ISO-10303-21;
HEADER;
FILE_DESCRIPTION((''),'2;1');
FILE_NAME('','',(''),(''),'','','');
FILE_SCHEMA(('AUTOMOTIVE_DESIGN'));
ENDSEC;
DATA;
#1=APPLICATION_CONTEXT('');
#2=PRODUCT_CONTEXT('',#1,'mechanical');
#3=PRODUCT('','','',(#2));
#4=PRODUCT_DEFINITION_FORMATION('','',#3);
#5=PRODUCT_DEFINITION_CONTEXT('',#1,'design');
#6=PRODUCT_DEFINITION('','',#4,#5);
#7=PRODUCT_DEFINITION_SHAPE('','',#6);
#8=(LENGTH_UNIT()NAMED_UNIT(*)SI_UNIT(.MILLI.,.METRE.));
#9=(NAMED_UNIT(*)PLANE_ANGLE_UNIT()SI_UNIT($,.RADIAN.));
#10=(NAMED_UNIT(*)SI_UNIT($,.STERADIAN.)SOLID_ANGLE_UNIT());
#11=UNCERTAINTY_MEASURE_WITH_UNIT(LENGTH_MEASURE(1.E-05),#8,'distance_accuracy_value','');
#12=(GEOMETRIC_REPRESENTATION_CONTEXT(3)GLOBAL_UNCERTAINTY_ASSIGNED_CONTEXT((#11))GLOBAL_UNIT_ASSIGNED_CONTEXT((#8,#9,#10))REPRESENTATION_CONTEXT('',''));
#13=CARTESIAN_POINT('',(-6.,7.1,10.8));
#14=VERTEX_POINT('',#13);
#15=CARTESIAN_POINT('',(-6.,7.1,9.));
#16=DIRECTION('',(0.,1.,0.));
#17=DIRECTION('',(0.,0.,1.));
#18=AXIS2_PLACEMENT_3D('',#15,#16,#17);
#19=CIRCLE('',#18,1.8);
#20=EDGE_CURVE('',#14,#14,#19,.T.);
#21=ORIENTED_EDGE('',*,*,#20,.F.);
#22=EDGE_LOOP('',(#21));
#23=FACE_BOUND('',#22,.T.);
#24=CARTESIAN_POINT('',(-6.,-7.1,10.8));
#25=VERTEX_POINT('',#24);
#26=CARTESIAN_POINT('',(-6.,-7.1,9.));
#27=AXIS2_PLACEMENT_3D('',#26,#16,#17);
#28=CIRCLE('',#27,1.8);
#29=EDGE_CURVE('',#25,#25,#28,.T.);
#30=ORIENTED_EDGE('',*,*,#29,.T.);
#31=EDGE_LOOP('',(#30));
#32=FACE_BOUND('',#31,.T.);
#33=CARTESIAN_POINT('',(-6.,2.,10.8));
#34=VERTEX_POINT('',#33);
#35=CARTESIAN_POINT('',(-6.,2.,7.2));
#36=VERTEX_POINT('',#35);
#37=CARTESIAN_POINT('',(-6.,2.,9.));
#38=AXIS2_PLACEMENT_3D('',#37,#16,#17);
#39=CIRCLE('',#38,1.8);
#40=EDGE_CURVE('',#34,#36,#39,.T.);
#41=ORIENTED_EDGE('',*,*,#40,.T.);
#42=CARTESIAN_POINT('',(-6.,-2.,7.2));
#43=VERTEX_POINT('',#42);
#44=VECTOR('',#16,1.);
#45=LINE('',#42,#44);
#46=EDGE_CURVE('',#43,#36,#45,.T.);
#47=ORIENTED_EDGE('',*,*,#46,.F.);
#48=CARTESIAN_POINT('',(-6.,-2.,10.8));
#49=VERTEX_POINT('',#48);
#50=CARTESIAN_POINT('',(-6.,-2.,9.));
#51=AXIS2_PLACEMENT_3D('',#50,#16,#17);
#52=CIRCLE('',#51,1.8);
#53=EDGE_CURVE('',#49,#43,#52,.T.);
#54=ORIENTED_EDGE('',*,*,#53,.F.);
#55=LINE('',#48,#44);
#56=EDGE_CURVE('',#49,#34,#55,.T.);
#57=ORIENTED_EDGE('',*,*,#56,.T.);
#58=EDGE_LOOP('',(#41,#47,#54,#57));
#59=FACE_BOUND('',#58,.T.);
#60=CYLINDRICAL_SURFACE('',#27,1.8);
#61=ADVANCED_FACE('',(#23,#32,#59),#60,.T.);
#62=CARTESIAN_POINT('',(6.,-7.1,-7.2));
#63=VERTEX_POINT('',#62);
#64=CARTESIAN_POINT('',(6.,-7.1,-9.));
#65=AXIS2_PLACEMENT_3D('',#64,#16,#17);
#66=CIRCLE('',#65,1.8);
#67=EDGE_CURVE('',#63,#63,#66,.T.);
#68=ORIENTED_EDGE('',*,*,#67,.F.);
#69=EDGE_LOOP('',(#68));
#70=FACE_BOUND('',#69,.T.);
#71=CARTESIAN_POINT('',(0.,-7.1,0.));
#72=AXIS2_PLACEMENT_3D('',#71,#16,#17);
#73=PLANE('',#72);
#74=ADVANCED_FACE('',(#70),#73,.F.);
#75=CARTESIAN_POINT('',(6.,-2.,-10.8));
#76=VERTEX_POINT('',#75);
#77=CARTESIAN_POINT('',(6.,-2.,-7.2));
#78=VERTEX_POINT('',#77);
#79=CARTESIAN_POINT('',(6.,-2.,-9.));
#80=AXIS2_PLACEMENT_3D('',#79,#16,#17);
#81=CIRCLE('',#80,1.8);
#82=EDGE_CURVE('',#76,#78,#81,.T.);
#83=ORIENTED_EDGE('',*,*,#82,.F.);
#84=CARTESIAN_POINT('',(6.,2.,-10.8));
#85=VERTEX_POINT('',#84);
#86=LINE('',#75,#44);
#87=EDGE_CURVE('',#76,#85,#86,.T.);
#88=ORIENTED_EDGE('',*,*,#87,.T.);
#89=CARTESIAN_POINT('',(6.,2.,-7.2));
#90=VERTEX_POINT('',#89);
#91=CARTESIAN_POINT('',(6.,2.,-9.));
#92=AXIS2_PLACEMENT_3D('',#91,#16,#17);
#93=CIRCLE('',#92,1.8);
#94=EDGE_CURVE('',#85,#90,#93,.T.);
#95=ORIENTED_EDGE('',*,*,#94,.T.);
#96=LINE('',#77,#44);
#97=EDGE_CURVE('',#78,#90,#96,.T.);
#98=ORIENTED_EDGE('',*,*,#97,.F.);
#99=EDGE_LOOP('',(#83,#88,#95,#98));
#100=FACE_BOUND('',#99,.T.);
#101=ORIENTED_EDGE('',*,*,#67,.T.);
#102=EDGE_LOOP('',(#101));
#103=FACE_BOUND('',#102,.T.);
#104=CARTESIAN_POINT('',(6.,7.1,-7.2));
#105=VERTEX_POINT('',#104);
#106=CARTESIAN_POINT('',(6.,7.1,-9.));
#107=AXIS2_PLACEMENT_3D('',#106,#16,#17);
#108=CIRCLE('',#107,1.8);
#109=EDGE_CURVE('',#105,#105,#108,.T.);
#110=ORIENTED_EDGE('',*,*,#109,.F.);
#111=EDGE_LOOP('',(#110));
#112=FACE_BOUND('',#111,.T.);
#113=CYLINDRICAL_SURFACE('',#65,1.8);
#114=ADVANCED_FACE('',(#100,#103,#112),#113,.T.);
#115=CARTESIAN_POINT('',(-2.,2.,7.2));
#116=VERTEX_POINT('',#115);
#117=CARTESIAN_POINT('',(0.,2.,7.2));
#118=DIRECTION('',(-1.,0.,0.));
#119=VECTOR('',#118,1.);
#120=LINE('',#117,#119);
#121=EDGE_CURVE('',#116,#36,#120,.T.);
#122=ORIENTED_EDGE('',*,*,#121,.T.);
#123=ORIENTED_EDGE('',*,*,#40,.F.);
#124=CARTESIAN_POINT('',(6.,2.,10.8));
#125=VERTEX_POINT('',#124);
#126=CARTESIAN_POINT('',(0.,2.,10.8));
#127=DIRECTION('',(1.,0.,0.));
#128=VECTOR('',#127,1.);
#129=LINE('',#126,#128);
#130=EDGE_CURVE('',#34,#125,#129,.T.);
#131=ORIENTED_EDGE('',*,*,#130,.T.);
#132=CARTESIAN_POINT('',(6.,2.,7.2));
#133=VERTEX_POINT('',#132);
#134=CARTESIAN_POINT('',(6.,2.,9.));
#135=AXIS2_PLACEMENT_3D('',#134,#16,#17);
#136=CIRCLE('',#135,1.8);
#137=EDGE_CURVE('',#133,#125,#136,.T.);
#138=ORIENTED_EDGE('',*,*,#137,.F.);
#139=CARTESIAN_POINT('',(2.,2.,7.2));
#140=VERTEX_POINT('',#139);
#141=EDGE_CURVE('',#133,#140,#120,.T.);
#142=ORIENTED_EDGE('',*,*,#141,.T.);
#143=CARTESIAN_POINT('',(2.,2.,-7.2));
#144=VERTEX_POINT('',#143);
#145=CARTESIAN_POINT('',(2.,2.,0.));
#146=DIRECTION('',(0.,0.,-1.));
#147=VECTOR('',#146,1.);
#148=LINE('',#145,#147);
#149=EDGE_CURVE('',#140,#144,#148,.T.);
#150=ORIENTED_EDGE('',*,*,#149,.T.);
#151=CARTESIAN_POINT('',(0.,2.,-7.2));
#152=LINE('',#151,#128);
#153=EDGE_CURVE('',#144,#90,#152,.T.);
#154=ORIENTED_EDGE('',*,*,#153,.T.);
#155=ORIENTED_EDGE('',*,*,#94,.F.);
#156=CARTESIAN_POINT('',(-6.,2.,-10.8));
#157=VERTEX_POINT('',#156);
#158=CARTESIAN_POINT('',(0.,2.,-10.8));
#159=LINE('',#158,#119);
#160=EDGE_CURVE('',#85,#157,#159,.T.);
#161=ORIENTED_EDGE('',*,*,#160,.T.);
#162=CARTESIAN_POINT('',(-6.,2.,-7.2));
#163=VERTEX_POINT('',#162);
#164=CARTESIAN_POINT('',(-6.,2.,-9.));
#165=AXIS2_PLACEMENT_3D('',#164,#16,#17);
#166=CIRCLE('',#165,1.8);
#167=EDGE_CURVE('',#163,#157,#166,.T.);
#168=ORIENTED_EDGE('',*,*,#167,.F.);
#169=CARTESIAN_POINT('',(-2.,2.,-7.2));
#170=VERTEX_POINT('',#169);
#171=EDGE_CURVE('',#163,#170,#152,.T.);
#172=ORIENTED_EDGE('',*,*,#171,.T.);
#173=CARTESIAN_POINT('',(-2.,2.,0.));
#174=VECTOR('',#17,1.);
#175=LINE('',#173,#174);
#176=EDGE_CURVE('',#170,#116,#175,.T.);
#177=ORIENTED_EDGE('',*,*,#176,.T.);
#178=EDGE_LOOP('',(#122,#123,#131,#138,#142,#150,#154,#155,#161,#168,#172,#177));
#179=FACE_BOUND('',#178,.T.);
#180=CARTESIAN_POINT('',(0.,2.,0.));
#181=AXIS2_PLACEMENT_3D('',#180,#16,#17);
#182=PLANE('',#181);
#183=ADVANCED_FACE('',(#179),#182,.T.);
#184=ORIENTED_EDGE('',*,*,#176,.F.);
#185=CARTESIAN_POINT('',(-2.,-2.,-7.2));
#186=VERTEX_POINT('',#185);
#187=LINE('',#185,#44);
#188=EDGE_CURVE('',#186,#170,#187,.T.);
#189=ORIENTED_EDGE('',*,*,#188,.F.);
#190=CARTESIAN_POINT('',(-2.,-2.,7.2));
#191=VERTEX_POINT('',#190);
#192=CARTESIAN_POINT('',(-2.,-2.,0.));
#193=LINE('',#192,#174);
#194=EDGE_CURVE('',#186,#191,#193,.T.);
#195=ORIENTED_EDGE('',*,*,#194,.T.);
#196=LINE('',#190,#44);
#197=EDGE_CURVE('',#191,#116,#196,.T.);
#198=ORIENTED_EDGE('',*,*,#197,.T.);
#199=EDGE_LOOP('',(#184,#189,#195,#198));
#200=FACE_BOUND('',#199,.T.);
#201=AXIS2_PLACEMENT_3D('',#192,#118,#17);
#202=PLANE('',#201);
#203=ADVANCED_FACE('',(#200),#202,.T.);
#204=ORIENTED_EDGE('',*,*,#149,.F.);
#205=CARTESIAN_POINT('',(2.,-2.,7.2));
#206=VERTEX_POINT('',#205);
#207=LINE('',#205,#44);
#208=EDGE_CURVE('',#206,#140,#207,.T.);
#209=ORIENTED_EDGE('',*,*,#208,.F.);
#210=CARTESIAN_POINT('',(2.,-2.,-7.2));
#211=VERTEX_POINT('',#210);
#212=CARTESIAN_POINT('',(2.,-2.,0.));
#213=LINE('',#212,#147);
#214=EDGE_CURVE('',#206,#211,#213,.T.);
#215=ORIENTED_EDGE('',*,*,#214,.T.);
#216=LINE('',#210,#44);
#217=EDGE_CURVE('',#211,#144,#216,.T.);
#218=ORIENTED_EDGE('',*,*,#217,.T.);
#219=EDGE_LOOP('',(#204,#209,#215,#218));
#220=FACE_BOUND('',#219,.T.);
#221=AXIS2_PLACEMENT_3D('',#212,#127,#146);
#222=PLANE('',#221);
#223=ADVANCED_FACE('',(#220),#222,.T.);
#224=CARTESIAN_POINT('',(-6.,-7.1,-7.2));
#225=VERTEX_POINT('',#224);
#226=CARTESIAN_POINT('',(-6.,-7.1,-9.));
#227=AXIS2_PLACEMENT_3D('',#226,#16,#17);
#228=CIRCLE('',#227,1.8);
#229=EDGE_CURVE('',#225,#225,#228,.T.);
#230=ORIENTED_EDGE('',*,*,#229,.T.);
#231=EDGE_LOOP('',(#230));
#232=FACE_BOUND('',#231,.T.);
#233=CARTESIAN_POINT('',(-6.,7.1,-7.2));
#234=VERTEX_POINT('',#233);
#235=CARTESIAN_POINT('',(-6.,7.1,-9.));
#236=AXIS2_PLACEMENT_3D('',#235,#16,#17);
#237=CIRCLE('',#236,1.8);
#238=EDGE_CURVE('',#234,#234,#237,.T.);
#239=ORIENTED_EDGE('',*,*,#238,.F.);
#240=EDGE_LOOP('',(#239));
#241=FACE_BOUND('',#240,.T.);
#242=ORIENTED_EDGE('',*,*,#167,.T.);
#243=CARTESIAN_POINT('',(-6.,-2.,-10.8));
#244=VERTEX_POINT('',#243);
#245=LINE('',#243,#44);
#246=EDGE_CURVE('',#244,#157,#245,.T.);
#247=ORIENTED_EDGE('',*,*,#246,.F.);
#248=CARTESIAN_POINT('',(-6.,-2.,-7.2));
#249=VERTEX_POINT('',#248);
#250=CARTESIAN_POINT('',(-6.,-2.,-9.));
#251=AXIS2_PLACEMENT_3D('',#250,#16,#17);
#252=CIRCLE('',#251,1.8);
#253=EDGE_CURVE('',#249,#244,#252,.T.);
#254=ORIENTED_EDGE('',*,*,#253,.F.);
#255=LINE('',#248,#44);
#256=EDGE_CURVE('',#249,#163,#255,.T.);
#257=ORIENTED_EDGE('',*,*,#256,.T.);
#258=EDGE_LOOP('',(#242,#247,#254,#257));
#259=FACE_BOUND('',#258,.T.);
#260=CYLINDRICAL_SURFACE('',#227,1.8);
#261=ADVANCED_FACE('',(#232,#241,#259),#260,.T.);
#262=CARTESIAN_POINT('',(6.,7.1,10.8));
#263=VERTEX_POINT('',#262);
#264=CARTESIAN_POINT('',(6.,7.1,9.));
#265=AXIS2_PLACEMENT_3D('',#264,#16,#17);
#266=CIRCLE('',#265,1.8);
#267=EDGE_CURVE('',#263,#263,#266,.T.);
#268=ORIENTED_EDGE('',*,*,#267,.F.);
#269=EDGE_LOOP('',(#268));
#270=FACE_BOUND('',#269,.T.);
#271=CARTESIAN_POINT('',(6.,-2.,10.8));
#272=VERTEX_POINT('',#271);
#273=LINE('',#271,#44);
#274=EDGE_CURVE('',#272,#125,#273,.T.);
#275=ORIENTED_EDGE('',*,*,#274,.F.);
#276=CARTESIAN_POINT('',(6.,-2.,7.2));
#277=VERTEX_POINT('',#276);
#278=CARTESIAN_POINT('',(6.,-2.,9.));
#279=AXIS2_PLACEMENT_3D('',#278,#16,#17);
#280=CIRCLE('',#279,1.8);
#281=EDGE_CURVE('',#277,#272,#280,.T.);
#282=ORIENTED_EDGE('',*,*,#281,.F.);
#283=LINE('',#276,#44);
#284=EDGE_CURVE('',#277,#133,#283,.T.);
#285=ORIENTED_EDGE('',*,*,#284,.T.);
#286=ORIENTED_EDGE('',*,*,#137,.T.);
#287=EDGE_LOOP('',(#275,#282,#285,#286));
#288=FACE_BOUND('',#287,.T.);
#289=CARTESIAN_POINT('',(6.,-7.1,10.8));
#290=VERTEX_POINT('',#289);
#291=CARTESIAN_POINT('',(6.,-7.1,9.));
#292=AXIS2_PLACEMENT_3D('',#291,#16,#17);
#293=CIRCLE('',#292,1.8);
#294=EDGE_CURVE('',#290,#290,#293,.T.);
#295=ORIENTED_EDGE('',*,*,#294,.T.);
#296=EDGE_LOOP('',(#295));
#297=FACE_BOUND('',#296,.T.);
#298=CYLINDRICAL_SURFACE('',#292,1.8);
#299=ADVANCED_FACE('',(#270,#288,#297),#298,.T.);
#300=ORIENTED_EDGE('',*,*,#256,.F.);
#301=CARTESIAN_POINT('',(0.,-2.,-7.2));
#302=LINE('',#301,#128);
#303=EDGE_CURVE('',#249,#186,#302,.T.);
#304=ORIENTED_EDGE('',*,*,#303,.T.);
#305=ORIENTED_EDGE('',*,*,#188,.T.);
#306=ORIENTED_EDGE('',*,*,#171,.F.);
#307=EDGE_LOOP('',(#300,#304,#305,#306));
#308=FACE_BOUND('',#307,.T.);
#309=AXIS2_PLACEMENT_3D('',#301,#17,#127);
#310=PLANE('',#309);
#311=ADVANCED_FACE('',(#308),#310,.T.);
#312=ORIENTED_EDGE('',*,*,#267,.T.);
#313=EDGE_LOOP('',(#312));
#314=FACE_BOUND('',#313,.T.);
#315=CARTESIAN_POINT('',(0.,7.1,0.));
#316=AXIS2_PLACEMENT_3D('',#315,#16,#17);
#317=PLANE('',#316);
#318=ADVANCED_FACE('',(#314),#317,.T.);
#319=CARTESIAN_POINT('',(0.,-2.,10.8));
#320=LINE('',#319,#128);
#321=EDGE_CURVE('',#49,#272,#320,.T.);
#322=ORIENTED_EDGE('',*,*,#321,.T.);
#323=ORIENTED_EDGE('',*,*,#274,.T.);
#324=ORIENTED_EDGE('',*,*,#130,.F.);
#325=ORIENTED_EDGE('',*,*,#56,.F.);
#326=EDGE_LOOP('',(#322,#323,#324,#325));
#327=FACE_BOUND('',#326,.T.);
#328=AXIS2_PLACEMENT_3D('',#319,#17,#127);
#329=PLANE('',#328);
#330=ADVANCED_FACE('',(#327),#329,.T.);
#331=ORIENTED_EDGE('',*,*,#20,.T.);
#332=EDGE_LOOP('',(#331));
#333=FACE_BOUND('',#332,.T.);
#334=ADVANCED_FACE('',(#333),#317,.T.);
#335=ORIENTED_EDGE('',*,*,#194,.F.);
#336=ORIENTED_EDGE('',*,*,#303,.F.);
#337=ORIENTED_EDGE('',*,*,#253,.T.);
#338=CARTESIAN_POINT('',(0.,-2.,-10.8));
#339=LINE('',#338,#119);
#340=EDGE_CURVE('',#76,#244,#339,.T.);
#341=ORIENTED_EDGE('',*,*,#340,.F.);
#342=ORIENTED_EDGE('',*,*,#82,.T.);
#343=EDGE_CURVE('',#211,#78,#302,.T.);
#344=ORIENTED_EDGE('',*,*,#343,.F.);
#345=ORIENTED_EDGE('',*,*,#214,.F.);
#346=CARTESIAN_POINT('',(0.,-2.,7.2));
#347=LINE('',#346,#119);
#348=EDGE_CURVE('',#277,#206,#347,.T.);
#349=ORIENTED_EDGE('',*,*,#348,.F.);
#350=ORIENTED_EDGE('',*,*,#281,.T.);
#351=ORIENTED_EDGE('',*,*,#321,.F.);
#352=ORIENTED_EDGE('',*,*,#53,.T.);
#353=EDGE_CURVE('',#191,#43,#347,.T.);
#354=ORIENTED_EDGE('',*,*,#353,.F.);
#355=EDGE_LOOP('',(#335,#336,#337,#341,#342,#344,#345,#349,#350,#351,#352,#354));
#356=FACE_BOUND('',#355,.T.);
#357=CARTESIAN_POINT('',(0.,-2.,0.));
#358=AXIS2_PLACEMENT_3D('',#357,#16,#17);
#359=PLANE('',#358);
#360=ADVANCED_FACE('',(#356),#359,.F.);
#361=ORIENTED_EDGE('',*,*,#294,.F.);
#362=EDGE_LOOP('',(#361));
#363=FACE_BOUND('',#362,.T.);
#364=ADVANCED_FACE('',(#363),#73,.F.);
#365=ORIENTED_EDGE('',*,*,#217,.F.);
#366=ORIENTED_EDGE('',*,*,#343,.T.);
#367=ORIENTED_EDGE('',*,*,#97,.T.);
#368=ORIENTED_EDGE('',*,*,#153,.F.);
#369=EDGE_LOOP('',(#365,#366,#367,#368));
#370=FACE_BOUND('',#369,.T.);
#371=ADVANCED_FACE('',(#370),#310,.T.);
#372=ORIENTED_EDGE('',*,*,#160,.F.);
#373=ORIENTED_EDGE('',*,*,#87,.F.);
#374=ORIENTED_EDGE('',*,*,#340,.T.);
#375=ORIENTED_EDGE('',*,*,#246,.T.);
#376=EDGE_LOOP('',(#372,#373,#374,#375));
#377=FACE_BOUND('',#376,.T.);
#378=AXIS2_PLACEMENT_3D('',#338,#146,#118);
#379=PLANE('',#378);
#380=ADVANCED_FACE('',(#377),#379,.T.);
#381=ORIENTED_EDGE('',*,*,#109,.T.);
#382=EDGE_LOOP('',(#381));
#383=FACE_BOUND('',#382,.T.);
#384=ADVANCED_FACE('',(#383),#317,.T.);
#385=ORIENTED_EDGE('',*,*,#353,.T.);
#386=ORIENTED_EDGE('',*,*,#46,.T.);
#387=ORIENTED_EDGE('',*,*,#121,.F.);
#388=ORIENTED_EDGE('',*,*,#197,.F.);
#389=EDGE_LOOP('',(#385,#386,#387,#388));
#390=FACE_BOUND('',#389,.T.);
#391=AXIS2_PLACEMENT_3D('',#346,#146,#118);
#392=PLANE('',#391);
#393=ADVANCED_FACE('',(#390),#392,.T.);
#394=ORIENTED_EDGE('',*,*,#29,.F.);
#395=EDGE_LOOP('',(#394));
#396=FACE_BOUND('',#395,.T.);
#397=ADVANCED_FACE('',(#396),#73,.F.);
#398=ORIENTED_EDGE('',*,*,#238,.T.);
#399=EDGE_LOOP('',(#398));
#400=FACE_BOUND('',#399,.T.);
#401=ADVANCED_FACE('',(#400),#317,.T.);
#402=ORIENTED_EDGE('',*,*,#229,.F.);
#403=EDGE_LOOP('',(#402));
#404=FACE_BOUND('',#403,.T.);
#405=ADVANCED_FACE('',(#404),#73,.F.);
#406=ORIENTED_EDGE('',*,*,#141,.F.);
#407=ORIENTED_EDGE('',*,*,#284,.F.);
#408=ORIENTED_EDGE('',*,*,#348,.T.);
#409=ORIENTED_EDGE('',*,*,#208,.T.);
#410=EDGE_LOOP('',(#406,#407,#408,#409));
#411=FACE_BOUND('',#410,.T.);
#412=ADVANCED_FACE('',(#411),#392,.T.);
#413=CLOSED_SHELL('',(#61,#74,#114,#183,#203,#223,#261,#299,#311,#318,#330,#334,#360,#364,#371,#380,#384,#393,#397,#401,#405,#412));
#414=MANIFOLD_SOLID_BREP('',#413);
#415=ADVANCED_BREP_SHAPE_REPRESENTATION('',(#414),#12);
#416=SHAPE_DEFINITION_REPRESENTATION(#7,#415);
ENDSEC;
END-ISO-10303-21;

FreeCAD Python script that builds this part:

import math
import FreeCAD as App
import Part
import Sketcher
from FreeCAD import Vector
Q = App.Units.Quantity

doc = App.newDocument("Part")
body = doc.addObject("PartDesign::Body", "Body")

# Sketch on XZ plane
sketch1 = body.newObject("Sketcher::SketchObject", "Sketch")
sketch1.AttachmentSupport = (doc.getObject("XZ_Plane"), [""])
sketch1.MapMode = "FlatFace"
sketch1.addGeometry([
    Part.ArcOfCircle(Part.Circle(Vector(-6, 9, 0), Vector(0, 0, 1), 1.8), math.radians(0), math.radians(90)),  # 0
    Part.LineSegment(Vector(-6, 10.8, 0), Vector(6, 10.8, 0)),  # 1
    Part.ArcOfCircle(Part.Circle(Vector(6, 9, 0), Vector(0, 0, 1), 1.8), math.radians(90), math.radians(270)),  # 2
    Part.LineSegment(Vector(6, 7.2, 0), Vector(2, 7.2, 0)),  # 3
    Part.LineSegment(Vector(2, 7.2, 0), Vector(2, -7.2, 0)),  # 4
    Part.LineSegment(Vector(2, -7.2, 0), Vector(6, -7.2, 0)),  # 5
    Part.ArcOfCircle(Part.Circle(Vector(6, -9, 0), Vector(0, 0, 1), 1.8), math.radians(90), math.radians(270)),  # 6
    Part.LineSegment(Vector(6, -10.8, 0), Vector(-6, -10.8, 0)),  # 7
    Part.ArcOfCircle(Part.Circle(Vector(-6, -9, 0), Vector(0, 0, 1), 1.8), math.radians(-90), math.radians(0)),  # 8
    Part.ArcOfCircle(Part.Circle(Vector(-6, -9, 0), Vector(0, 0, 1), 1.8), math.radians(0), math.radians(90)),  # 9
    Part.LineSegment(Vector(-6, -7.2, 0), Vector(-2, -7.2, 0)),  # 10
    Part.LineSegment(Vector(-2, -7.2, 0), Vector(-2, 7.2, 0)),  # 11
    Part.LineSegment(Vector(-2, 7.2, 0), Vector(-6, 7.2, 0)),  # 12
    Part.ArcOfCircle(Part.Circle(Vector(-6, 9, 0), Vector(0, 0, 1), 1.8), math.radians(-90), math.radians(0)),  # 13
], False)
sketch1.addConstraint([
    Sketcher.Constraint("Tangent", 0, 2, 1, 1),
    Sketcher.Constraint("Tangent", 1, 2, 2, 1),
    Sketcher.Constraint("Tangent", 2, 2, 3, 1),
    Sketcher.Constraint("Coincident", 3, 2, 4, 1),
    Sketcher.Constraint("Coincident", 4, 2, 5, 1),
    Sketcher.Constraint("Tangent", 5, 2, 6, 1),
    Sketcher.Constraint("Tangent", 6, 2, 7, 1),
    Sketcher.Constraint("Tangent", 7, 2, 8, 1),
    Sketcher.Constraint("Tangent", 8, 2, 9, 1),
    Sketcher.Constraint("Tangent", 9, 2, 10, 1),
    Sketcher.Constraint("Coincident", 10, 2, 11, 1),
    Sketcher.Constraint("Coincident", 11, 2, 12, 1),
    Sketcher.Constraint("Tangent", 12, 2, 13, 1),
    Sketcher.Constraint("Tangent", 13, 2, 0, 1),
    Sketcher.Constraint("Horizontal", 1),
    Sketcher.Constraint("Horizontal", 3),
    Sketcher.Constraint("Vertical", 4),
    Sketcher.Constraint("Horizontal", 5),
    Sketcher.Constraint("Horizontal", 7),
    Sketcher.Constraint("Horizontal", 10),
    Sketcher.Constraint("Vertical", 11),
    Sketcher.Constraint("Horizontal", 12),
    Sketcher.Constraint("Equal", 0, 2),
    Sketcher.Constraint("Equal", 2, 6),
    Sketcher.Constraint("Equal", 6, 8),
    Sketcher.Constraint("Equal", 8, 9),
    Sketcher.Constraint("Equal", 9, 13),
    Sketcher.Constraint("Symmetric", 0, 3, 6, 3, -1, 1),
    Sketcher.Constraint("Symmetric", 8, 2, 13, 2, -1),
    Sketcher.Constraint("Horizontal", 9, 3, 8, 2),
    Sketcher.Constraint("Vertical", 2, 3, 6, 3),
    Sketcher.Constraint("Equal", 5, 10),
    Sketcher.Constraint("Radius", 0, Q("1.8 mm")),
    Sketcher.Constraint("DistanceX", 1, 1, 1, 2, Q("12 mm")),
    Sketcher.Constraint("DistanceX", 3, 2, 3, 1, Q("4 mm")),
    Sketcher.Constraint("DistanceY", 4, 2, 4, 1, Q("14.4 mm")),
])
pad1 = body.newObject("PartDesign::Pad", "Pad")
pad1.Profile = sketch1
pad1.Type = "TwoLengths"
pad1.Length = 2
pad1.Length2 = 2
pad1.Reversed = True

# Sketch on XZ plane
sketch2 = body.newObject("Sketcher::SketchObject", "Sketch001")
sketch2.AttachmentSupport = (doc.getObject("XZ_Plane"), [""])
sketch2.MapMode = "FlatFace"
sketch2.addGeometry([
    Part.Circle(Vector(-6, -9, 0), Vector(0, 0, 1), 1.8),
    Part.Circle(Vector(6, -9, 0), Vector(0, 0, 1), 1.8),
    Part.Circle(Vector(-6, 9, 0), Vector(0, 0, 1), 1.8),
    Part.Circle(Vector(6, 9, 0), Vector(0, 0, 1), 1.8),
], False)
sketch2.addConstraint([
    Sketcher.Constraint("Equal", 0, 1),
    Sketcher.Constraint("Equal", 1, 2),
    Sketcher.Constraint("Equal", 2, 3),
    Sketcher.Constraint("Symmetric", 1, 3, 2, 3, -1, 1),
    Sketcher.Constraint("Symmetric", 0, 3, 3, 3, -1, 1),
    Sketcher.Constraint("Symmetric", 0, 3, 1, 3, -2),
    Sketcher.Constraint("Diameter", 0, Q("3.6 mm")),
    Sketcher.Constraint("DistanceX", 0, 3, -1, 1, Q("6 mm")),
    Sketcher.Constraint("DistanceY", 0, 3, -1, 1, Q("9 mm")),
])
pad2 = body.newObject("PartDesign::Pad", "Pad001")
pad2.Profile = sketch2
pad2.Type = "TwoLengths"
pad2.Length = 7.1
pad2.Length2 = 7.1
pad2.Reversed = True

doc.recompute()
